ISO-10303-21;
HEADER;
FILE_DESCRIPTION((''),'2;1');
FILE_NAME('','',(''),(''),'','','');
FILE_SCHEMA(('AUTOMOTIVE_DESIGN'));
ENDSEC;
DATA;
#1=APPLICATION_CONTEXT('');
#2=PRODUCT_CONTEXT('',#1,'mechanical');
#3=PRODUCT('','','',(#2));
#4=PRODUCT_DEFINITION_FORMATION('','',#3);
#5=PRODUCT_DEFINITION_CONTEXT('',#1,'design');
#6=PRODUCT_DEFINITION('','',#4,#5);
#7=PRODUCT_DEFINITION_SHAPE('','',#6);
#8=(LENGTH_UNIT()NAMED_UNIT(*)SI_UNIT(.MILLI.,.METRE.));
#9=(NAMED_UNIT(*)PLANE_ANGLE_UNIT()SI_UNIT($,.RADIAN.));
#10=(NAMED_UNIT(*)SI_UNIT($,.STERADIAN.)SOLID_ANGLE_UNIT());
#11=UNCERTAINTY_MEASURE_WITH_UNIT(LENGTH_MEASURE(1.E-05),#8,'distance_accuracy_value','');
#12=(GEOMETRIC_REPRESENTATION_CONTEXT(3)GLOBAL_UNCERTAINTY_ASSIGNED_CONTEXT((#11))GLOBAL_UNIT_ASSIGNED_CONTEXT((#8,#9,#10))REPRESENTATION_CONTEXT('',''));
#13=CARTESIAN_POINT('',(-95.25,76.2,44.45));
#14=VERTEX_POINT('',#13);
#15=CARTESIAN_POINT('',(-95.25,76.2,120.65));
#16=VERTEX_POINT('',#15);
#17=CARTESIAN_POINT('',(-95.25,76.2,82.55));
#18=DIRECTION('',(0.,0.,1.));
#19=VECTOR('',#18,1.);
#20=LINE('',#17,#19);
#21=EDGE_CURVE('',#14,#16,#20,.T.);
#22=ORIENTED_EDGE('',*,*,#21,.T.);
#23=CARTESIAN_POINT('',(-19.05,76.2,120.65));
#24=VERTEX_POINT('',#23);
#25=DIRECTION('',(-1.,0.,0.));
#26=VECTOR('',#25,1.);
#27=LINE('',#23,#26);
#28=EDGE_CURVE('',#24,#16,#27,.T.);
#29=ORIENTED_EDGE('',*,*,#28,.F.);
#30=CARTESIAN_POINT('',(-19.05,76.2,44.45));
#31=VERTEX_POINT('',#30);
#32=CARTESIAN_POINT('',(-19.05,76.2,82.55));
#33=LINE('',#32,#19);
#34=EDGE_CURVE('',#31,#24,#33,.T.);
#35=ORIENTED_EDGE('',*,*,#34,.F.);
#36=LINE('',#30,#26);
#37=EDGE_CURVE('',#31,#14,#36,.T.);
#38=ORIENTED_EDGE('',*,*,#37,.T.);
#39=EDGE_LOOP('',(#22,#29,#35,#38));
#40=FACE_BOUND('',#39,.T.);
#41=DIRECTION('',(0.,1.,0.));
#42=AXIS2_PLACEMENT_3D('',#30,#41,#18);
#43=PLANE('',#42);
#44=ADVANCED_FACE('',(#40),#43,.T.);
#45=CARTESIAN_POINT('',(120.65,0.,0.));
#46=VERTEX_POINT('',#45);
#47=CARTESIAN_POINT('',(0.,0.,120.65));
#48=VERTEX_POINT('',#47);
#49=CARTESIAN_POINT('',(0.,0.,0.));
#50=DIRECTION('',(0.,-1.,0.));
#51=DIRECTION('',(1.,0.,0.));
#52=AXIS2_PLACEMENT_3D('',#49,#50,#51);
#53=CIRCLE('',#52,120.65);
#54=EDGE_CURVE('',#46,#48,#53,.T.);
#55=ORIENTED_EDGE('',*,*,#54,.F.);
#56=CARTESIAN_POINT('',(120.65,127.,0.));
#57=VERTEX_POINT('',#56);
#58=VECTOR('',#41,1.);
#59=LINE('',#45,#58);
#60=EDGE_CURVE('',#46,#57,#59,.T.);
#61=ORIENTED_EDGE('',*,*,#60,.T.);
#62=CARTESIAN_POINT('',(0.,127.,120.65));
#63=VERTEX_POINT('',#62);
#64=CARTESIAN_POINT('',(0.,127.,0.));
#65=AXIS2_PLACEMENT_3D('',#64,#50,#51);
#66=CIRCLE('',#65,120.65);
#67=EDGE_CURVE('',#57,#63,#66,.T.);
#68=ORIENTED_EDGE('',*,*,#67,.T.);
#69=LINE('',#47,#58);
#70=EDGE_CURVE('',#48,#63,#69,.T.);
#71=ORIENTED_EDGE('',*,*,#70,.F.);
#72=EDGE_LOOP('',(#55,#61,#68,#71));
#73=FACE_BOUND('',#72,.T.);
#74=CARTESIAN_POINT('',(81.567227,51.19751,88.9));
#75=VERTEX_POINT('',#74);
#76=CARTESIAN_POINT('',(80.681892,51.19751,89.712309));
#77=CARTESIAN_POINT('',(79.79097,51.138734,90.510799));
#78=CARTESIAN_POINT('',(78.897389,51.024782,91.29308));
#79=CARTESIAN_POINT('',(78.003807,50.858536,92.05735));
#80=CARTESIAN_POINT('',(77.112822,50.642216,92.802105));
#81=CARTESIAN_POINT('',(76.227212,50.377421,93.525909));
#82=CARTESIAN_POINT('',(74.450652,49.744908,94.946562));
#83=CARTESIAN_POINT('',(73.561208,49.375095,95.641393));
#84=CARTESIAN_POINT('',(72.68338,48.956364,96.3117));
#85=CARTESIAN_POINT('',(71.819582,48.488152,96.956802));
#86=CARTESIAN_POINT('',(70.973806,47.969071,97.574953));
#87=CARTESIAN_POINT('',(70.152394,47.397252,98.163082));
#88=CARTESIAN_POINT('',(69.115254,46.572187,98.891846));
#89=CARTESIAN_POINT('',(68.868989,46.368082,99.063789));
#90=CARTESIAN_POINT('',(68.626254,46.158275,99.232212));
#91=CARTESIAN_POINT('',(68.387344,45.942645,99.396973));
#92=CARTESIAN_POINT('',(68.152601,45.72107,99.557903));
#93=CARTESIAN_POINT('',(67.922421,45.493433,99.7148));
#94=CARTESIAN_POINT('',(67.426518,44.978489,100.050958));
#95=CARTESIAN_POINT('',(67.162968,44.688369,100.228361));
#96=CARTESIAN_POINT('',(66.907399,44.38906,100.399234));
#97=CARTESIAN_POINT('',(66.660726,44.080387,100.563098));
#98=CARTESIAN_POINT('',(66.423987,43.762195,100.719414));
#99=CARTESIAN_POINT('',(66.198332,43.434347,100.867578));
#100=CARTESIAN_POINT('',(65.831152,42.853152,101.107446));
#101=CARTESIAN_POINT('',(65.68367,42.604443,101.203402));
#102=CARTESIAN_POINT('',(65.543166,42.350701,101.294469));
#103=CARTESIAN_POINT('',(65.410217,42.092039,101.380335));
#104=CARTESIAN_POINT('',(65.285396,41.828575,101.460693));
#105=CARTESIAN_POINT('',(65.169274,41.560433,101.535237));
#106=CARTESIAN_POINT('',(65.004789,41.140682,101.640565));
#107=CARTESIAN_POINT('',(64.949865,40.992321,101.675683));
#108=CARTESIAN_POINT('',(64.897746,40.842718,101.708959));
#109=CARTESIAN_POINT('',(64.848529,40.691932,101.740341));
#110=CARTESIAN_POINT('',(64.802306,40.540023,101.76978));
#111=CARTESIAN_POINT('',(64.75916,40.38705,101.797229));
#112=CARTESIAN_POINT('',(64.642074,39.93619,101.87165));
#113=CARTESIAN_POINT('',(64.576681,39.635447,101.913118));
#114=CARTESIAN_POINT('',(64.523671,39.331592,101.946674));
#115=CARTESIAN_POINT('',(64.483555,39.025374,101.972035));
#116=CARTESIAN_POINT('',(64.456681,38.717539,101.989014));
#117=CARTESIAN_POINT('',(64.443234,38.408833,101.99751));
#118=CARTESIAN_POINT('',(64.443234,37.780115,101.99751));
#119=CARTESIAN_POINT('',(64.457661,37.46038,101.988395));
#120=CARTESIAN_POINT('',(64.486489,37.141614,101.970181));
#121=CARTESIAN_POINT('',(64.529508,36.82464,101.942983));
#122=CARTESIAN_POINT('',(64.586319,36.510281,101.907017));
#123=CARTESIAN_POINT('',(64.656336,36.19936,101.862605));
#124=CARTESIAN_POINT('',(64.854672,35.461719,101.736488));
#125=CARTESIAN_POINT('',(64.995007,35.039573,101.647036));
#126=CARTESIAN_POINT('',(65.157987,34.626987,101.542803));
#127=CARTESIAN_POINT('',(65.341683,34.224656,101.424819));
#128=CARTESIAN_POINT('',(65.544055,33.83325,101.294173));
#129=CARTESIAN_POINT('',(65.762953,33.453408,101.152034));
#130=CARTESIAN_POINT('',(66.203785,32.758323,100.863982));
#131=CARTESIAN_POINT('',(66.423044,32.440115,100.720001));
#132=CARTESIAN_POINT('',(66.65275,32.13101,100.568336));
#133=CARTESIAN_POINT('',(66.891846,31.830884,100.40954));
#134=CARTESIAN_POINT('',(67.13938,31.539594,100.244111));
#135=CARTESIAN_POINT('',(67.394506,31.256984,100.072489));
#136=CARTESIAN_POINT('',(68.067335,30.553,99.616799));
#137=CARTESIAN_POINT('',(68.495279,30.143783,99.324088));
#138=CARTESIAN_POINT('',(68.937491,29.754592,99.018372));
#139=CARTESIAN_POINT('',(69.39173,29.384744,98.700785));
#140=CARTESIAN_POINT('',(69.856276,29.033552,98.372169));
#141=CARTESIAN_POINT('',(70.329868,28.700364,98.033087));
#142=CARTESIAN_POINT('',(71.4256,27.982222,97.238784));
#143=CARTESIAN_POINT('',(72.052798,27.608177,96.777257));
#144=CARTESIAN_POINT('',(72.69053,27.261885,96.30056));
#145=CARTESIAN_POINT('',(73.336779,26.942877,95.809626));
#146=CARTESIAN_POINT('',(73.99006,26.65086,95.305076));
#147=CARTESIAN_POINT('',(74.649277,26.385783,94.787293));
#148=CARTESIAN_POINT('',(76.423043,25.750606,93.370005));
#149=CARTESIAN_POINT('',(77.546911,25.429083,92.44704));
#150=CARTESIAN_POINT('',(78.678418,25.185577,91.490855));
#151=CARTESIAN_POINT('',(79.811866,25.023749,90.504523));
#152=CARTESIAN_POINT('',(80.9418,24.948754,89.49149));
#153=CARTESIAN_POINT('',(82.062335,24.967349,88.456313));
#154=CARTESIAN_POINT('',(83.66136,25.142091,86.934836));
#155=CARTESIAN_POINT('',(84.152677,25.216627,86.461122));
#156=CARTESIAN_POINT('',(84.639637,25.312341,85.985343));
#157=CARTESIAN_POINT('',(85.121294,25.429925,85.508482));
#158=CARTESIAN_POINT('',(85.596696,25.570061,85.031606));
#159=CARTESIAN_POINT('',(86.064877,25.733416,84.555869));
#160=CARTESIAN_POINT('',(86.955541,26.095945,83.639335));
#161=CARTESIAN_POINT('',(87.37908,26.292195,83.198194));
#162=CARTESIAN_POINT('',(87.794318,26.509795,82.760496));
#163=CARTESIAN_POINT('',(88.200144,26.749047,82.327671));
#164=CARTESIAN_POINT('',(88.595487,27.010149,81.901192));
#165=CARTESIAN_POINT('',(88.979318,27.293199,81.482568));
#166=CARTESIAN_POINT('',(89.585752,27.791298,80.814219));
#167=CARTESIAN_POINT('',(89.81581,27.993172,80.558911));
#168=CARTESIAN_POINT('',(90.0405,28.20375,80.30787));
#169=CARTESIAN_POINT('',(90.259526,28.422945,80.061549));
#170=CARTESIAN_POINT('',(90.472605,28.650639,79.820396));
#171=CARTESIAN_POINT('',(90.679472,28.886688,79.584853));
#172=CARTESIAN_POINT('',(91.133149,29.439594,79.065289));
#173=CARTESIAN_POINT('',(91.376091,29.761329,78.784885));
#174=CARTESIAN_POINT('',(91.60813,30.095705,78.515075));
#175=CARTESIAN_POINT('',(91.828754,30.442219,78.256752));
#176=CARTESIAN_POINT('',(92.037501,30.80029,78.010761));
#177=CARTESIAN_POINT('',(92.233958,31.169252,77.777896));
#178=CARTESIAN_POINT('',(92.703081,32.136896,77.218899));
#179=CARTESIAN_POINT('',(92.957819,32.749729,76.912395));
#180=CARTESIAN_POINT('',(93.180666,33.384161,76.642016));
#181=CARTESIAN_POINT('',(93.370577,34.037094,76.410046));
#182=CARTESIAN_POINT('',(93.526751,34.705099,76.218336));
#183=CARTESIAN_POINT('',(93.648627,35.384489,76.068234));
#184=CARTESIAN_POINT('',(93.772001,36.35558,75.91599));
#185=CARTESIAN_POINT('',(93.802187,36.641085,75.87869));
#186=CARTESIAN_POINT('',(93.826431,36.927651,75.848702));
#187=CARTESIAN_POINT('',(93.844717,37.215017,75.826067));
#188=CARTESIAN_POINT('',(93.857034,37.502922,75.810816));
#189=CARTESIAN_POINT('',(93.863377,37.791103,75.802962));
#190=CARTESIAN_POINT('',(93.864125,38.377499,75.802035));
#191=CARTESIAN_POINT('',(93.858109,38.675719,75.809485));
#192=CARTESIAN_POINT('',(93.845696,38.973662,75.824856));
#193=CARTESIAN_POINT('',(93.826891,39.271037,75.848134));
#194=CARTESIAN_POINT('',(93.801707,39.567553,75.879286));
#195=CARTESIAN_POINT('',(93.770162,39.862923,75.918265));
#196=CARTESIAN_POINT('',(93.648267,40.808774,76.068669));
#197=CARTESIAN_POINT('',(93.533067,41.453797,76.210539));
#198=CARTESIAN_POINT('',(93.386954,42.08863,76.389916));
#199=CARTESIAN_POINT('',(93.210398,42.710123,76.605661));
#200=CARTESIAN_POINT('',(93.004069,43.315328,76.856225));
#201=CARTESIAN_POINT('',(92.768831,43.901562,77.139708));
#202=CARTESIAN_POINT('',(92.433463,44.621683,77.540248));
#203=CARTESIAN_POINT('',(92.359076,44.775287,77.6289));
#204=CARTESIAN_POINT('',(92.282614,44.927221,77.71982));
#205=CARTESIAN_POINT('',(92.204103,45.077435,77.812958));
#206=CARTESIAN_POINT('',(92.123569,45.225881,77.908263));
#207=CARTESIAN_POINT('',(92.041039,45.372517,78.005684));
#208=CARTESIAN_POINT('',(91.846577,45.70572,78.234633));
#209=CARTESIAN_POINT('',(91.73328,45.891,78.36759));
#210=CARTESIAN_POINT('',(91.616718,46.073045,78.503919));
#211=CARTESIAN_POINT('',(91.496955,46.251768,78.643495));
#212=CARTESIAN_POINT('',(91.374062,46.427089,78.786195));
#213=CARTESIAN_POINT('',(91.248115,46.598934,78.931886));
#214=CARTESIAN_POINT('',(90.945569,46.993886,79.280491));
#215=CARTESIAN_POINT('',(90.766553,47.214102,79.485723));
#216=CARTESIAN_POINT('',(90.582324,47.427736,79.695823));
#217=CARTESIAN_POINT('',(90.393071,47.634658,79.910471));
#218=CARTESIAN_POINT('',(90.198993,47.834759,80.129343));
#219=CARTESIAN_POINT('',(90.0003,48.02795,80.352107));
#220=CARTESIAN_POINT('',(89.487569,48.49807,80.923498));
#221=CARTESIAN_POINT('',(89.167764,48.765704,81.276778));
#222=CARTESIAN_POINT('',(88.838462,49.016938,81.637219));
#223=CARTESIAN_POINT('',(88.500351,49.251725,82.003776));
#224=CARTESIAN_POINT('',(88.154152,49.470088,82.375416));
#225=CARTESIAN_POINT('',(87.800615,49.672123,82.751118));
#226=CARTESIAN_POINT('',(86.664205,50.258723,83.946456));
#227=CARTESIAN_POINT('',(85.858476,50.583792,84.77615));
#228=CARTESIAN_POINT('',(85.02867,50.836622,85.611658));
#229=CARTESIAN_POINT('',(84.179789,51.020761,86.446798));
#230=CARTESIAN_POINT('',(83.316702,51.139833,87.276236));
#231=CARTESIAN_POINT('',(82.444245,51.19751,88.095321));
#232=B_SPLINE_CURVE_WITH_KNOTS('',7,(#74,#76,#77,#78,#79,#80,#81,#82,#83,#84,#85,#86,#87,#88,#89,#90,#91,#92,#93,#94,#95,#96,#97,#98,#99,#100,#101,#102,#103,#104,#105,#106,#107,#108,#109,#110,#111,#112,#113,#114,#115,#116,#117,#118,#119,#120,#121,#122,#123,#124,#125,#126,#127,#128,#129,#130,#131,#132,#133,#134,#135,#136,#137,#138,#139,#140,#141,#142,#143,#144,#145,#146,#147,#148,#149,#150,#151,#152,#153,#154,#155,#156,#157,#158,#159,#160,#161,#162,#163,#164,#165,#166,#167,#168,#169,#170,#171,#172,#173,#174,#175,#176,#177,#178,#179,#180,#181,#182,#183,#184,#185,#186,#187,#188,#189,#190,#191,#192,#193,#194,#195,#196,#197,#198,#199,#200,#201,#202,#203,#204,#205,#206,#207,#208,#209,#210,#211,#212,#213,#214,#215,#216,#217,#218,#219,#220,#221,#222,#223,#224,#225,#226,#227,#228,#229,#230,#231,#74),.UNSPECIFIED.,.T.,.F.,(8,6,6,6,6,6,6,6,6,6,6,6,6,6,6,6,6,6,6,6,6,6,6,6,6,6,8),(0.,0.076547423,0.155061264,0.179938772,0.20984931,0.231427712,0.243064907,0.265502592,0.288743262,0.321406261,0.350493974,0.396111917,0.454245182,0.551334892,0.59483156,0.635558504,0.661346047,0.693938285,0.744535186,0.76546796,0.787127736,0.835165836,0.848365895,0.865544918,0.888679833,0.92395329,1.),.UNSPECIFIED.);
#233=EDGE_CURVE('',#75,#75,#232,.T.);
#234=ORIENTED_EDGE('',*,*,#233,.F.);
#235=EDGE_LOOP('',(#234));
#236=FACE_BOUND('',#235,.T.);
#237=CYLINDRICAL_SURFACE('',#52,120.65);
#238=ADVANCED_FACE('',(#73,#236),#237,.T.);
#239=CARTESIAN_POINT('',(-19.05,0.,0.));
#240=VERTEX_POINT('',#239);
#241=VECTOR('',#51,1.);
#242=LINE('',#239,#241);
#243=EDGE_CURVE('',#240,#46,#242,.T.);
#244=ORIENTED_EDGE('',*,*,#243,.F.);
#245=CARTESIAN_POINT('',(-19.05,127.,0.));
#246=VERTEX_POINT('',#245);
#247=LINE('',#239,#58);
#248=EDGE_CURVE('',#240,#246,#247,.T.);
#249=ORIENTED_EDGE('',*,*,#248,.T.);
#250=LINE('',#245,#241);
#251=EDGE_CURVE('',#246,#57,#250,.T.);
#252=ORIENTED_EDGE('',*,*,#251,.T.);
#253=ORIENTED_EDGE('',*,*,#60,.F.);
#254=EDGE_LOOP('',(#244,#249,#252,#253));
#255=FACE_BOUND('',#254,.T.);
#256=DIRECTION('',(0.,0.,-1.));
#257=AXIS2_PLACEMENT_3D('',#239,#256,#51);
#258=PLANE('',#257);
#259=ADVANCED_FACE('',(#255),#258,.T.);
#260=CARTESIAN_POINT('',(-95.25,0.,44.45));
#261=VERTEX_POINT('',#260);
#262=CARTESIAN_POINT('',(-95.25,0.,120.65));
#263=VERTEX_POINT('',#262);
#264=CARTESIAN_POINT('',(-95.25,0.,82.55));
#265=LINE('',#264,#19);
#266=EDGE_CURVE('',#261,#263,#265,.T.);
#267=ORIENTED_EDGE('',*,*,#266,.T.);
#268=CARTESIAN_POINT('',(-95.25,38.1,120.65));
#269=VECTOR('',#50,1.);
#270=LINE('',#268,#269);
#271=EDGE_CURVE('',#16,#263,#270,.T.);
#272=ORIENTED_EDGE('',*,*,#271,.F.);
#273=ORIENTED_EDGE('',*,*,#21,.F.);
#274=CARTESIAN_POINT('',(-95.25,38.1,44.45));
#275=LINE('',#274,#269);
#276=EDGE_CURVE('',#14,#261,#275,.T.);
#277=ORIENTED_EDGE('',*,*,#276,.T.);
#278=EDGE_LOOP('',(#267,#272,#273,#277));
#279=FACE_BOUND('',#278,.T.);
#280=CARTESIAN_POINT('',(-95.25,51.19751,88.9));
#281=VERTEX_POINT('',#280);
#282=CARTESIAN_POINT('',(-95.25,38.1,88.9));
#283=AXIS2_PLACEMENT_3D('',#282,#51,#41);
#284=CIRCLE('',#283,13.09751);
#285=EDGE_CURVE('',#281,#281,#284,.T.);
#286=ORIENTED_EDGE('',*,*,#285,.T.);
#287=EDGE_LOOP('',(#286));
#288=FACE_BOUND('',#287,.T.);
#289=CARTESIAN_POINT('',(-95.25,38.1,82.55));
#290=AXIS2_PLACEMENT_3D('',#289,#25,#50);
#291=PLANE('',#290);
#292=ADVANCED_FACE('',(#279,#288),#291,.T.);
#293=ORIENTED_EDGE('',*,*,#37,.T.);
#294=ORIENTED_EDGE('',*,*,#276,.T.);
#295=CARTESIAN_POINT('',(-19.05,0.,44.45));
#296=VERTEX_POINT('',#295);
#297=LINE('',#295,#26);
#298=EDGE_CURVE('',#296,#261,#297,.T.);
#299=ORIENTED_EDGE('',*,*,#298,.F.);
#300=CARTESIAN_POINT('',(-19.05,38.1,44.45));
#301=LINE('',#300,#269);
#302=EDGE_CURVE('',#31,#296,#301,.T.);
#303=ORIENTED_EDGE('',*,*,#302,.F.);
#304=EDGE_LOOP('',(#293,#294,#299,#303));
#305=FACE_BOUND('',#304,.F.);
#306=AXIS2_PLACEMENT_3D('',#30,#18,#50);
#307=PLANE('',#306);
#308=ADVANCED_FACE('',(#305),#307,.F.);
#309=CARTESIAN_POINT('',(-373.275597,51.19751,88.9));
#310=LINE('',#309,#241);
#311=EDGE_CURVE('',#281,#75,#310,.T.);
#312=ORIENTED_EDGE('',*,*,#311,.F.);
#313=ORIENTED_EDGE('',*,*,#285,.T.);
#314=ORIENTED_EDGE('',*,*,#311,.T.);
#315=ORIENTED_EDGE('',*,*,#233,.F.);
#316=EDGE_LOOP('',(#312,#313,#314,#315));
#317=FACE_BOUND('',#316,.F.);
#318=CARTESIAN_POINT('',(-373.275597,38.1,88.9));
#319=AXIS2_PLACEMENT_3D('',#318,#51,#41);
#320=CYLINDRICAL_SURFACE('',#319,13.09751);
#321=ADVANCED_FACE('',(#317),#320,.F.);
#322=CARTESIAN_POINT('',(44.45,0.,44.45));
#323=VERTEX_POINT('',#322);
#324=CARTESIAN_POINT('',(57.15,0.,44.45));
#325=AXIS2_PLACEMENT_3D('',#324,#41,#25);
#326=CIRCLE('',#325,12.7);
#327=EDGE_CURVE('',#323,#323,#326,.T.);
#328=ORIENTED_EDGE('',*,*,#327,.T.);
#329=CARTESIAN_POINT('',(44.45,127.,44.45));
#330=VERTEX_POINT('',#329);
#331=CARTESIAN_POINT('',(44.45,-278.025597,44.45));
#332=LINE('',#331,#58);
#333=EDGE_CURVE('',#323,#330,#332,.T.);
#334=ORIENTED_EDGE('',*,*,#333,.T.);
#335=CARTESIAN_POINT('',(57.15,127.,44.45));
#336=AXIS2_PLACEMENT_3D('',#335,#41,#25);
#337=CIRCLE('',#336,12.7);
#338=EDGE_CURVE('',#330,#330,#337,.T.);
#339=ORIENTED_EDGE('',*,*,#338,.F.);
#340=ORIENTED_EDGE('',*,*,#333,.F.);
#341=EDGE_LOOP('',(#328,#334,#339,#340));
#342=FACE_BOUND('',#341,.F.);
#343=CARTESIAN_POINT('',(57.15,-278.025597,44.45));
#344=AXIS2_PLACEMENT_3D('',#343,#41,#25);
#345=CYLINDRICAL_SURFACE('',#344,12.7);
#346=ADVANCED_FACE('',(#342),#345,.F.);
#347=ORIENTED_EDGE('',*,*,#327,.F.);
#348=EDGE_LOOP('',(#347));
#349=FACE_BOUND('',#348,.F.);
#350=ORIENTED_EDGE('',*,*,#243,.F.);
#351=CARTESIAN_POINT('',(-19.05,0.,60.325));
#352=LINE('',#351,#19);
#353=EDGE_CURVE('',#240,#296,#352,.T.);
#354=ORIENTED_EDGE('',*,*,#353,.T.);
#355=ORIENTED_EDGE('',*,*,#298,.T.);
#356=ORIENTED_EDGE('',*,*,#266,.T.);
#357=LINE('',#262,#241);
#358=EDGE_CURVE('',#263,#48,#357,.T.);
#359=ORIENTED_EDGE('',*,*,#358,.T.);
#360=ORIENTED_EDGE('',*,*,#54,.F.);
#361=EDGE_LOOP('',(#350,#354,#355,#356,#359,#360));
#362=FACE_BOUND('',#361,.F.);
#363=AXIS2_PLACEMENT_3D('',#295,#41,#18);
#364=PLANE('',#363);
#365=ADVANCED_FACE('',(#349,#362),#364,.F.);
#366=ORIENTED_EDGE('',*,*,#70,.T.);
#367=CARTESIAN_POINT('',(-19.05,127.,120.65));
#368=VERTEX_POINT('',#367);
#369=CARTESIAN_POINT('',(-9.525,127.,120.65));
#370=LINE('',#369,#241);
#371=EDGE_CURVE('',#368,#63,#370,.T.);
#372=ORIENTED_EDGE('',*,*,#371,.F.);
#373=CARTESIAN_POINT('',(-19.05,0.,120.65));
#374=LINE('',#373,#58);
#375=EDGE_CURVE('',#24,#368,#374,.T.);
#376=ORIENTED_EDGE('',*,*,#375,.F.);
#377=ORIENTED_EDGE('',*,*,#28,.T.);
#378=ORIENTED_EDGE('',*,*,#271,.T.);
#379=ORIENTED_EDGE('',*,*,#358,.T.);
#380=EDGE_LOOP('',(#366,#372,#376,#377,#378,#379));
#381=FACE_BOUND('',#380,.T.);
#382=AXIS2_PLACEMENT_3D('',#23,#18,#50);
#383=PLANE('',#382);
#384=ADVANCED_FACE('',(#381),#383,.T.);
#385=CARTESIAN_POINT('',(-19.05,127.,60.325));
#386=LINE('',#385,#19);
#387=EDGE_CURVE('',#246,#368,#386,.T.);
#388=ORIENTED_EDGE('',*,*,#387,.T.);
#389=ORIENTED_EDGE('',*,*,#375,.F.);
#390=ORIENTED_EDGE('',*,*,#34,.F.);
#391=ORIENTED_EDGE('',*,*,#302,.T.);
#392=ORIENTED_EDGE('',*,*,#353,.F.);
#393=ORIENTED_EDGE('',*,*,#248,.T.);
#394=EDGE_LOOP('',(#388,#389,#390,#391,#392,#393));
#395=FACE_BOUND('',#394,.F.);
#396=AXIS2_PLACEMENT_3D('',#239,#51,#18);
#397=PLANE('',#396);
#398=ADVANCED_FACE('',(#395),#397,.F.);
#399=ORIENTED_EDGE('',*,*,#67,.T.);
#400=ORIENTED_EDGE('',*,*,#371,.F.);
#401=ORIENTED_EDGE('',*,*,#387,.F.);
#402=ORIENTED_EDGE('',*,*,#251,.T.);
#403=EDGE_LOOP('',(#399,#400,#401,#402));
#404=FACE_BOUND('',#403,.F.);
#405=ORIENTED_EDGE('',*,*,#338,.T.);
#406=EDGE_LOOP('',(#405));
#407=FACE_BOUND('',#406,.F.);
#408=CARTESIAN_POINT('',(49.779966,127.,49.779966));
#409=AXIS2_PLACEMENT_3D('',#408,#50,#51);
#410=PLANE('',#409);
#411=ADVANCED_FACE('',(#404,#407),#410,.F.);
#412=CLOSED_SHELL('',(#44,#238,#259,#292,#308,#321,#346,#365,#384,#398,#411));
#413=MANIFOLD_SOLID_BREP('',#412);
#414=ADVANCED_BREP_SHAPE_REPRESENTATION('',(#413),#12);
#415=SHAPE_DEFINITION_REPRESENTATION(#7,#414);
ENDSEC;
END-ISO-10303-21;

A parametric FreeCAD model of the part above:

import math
import FreeCAD as App
import Part
import Sketcher
from FreeCAD import Vector
Q = App.Units.Quantity


def add_polygon(sketch, points):
    """Adds a closed chain of lines whose ends are joined by coincident constraints."""
    first, n = sketch.GeometryCount, len(points)
    for a, b in zip(points, points[1:] + points[:1]):
        sketch.addGeometry(Part.LineSegment(App.Vector(*a, 0), App.Vector(*b, 0)), False)
    for i in range(n):
        sketch.addConstraint(Sketcher.Constraint("Coincident", first + i, 2, first + (i + 1) % n, 1))

doc = App.newDocument("Part")
body = doc.addObject("PartDesign::Body", "Body")

# Sketch on XZ plane
sketch1 = body.newObject("Sketcher::SketchObject", "Sketch")
sketch1.AttachmentSupport = (doc.getObject("XZ_Plane"), [""])
sketch1.MapMode = "FlatFace"
sketch1.addGeometry([
    Part.ArcOfCircle(Part.Circle(Vector(0, 0, 0), Vector(0, 0, 1), 120.65), math.radians(0), math.radians(90)),
    Part.LineSegment(Vector(0, 120.65, 0), Vector(-19.05, 120.65, 0)),
    Part.LineSegment(Vector(-19.05, 120.65, 0), Vector(-19.05, 0, 0)),
    Part.LineSegment(Vector(-19.05, 0, 0), Vector(120.65, 0, 0)),
], False)
sketch1.addConstraint([
    Sketcher.Constraint("Tangent", 0, 2, 1, 1),
    Sketcher.Constraint("Coincident", 1, 2, 2, 1),
    Sketcher.Constraint("Coincident", 2, 2, 3, 1),
    Sketcher.Constraint("Coincident", 3, 2, 0, 1),
    Sketcher.Constraint("Horizontal", 1),
    Sketcher.Constraint("Vertical", 2),
    Sketcher.Constraint("Horizontal", 3),
    Sketcher.Constraint("Coincident", 0, 3, -1, 1),
    Sketcher.Constraint("PointOnObject", 2, 2, -1),
    Sketcher.Constraint("Radius", 0, Q("4.75 in")),
    Sketcher.Constraint("DistanceX", 3, 1, 3, 2, Q("5.5 in")),
])
pad1 = body.newObject("PartDesign::Pad", "Pad")
pad1.Profile = sketch1
pad1.Length = Q("5 in")
pad1.Reversed = True

# Sketch on YZ plane
sketch2 = body.newObject("Sketcher::SketchObject", "Sketch001")
sketch2.AttachmentSupport = (doc.getObject("YZ_Plane"), [""])
sketch2.MapMode = "FlatFace"
sketch2.AttachmentOffset = App.Placement(Vector(0, 0, -0.75 * 25.4), App.Rotation())
add_polygon(sketch2, [(76.2, 120.65), (76.2, 44.45), (0, 44.45), (0, 120.65)])  # lines 0-3
sketch2.addConstraint([
    Sketcher.Constraint("Vertical", 0),
    Sketcher.Constraint("Horizontal", 1),
    Sketcher.Constraint("Vertical", 2),
    Sketcher.Constraint("Horizontal", 3),
    Sketcher.Constraint("PointOnObject", 1, 2, -2),
    Sketcher.Constraint("Equal", 3, 0),
    Sketcher.Constraint("DistanceX", 1, 2, 1, 1, Q("3 in")),
    Sketcher.Constraint("DistanceY", -1, 1, 0, 2, Q("1.75 in")),
])
pad2 = body.newObject("PartDesign::Pad", "Pad001")
pad2.Profile = sketch2
pad2.Length = Q("3 in")
pad2.Reversed = True

# Sketch on YZ plane
sketch3 = body.newObject("Sketcher::SketchObject", "Sketch002")
sketch3.AttachmentSupport = (doc.getObject("YZ_Plane"), [""])
sketch3.MapMode = "FlatFace"
sketch3.AttachmentOffset = App.Placement(Vector(0, 0, -3.75 * 25.4), App.Rotation())
sketch3.addGeometry(Part.Circle(Vector(38.1, 88.9, 0), Vector(0, 0, 1), 13.09751), False)
sketch3.addConstraint([
    Sketcher.Constraint("Diameter", 0, Q("1.0313 in")),
    Sketcher.Constraint("DistanceX", -1, 1, 0, 3, Q("1.5 in")),
    Sketcher.Constraint("DistanceY", -1, 1, 0, 3, Q("3.5 in")),
])
doc.recompute()
hole = body.newObject("PartDesign::Hole", "Hole")
hole.Profile = sketch3
hole.ThreadType = "None"
hole.Diameter = Q("1.0313 in")
hole.DepthType = "ThroughAll"
hole.Reversed = True

# Sketch on XZ plane
sketch4 = body.newObject("Sketcher::SketchObject", "Sketch003")
sketch4.AttachmentSupport = (doc.getObject("XZ_Plane"), [""])
sketch4.MapMode = "FlatFace"
sketch4.addGeometry(Part.Circle(Vector(57.15, 44.45, 0), Vector(0, 0, 1), 12.7), False)
sketch4.addConstraint([
    Sketcher.Constraint("Diameter", 0, Q("1 in")),
    Sketcher.Constraint("DistanceX", -1, 1, 0, 3, Q("2.25 in")),
    Sketcher.Constraint("DistanceY", -1, 1, 0, 3, Q("1.75 in")),
])
doc.recompute()
hole2 = body.newObject("PartDesign::Hole", "Hole001")
hole2.Profile = sketch4
hole2.ThreadType = "None"
hole2.Diameter = Q("1 in")
hole2.DepthType = "ThroughAll"

doc.recompute()
